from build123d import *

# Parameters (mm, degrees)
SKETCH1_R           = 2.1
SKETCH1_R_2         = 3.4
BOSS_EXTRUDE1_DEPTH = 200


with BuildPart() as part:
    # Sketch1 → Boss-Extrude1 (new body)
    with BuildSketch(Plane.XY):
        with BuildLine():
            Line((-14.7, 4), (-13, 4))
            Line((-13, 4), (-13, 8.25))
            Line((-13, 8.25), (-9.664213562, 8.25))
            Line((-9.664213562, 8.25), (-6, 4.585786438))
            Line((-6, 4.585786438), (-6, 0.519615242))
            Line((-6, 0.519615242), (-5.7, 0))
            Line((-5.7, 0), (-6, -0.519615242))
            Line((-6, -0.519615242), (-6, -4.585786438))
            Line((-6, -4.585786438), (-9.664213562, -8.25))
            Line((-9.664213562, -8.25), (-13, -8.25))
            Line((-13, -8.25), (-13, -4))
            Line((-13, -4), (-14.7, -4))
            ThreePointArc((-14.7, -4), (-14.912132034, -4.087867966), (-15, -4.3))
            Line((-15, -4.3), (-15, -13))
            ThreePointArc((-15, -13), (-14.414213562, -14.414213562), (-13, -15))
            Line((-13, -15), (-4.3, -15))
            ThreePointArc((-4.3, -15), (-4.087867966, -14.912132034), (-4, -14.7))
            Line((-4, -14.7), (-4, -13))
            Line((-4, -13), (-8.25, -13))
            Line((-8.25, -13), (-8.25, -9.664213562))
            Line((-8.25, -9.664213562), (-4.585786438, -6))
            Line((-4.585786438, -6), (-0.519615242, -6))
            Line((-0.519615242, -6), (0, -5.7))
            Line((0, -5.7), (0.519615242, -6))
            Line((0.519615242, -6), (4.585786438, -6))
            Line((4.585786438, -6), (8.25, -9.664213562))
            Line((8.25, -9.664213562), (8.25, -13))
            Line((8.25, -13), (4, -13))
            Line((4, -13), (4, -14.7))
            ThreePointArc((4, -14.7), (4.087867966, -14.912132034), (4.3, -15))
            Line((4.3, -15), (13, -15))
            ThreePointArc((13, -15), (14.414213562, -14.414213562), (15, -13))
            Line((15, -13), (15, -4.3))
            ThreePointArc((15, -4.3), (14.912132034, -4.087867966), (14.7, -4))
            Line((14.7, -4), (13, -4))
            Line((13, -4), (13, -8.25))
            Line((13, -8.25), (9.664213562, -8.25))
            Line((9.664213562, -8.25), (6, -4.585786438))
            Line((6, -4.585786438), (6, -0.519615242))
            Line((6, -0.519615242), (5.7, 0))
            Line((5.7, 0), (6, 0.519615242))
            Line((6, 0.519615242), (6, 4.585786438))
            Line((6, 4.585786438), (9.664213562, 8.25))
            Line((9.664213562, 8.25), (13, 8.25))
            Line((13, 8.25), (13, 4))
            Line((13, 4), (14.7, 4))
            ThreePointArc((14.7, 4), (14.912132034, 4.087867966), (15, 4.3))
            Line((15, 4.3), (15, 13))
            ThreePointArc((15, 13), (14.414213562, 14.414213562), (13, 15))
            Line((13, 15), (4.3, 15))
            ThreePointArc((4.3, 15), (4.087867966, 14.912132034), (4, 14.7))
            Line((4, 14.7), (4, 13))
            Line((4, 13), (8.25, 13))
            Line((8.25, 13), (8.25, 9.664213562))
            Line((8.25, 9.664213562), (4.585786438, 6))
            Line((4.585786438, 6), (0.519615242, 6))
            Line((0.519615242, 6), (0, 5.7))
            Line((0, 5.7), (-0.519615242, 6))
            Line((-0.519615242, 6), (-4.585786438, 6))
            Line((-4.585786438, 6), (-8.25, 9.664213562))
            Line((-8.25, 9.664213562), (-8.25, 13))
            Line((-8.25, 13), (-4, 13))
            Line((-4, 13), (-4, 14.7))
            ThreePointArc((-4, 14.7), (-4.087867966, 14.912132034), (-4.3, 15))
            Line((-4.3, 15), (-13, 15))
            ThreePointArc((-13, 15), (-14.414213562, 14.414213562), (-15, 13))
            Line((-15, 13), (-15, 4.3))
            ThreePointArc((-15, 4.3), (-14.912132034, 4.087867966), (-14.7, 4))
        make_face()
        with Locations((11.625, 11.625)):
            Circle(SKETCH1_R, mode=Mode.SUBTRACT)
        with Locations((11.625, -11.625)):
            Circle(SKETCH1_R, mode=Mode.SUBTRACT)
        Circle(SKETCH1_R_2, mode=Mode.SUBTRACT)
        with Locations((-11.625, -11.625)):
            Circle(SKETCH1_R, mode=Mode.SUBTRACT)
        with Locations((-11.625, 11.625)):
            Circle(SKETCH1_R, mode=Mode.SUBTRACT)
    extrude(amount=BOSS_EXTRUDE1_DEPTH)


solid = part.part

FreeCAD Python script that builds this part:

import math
import FreeCAD as App
import Part
import Sketcher
Q = App.Units.Quantity

doc = App.newDocument("Part")
body = doc.addObject("PartDesign::Body", "Body")

# Sketch on XY plane
sketch1 = doc.addObject("Sketcher::SketchObject", "Sketch")
body.addObject(sketch1)
sketch1.AttachmentSupport = (doc.XY_Plane, [""])
sketch1.MapMode = "FlatFace"
sketch1.addGeometry([
    Part.LineSegment(App.Vector(-14.7, 4, 0), App.Vector(-13, 4, 0)),  # 0
    Part.LineSegment(App.Vector(-13, 4, 0), App.Vector(-13, 8.25, 0)),  # 1
    Part.LineSegment(App.Vector(-13, 8.25, 0), App.Vector(-9.664214, 8.25, 0)),  # 2
    Part.LineSegment(App.Vector(-9.664214, 8.25, 0), App.Vector(-6, 4.585786, 0)),  # 3
    Part.LineSegment(App.Vector(-6, 4.585786, 0), App.Vector(-6, 0.519615, 0)),  # 4
    Part.LineSegment(App.Vector(-6, 0.519615, 0), App.Vector(-5.7, 0, 0)),  # 5
    Part.LineSegment(App.Vector(-5.7, 0, 0), App.Vector(-6, -0.519615, 0)),  # 6
    Part.LineSegment(App.Vector(-6, -0.519615, 0), App.Vector(-6, -4.585786, 0)),  # 7
    Part.LineSegment(App.Vector(-6, -4.585786, 0), App.Vector(-9.664214, -8.25, 0)),  # 8
    Part.LineSegment(App.Vector(-9.664214, -8.25, 0), App.Vector(-13, -8.25, 0)),  # 9
    Part.LineSegment(App.Vector(-13, -8.25, 0), App.Vector(-13, -4, 0)),  # 10
    Part.LineSegment(App.Vector(-13, -4, 0), App.Vector(-14.7, -4, 0)),  # 11
    Part.ArcOfCircle(Part.Circle(App.Vector(-14.7, -4.3, 0), App.Vector(0, 0, 1), 0.3), math.radians(90), math.radians(180)),  # 12
    Part.LineSegment(App.Vector(-15, -4.3, 0), App.Vector(-15, -13, 0)),  # 13
    Part.ArcOfCircle(Part.Circle(App.Vector(-13, -13, 0), App.Vector(0, 0, 1), 2), math.radians(-180), math.radians(-90)),  # 14
    Part.LineSegment(App.Vector(-13, -15, 0), App.Vector(-4.3, -15, 0)),  # 15
    Part.ArcOfCircle(Part.Circle(App.Vector(-4.3, -14.7, 0), App.Vector(0, 0, 1), 0.3), math.radians(-90), math.radians(0)),  # 16
    Part.LineSegment(App.Vector(-4, -14.7, 0), App.Vector(-4, -13, 0)),  # 17
    Part.LineSegment(App.Vector(-4, -13, 0), App.Vector(-8.25, -13, 0)),  # 18
    Part.LineSegment(App.Vector(-8.25, -13, 0), App.Vector(-8.25, -9.664214, 0)),  # 19
    Part.LineSegment(App.Vector(-8.25, -9.664214, 0), App.Vector(-4.585786, -6, 0)),  # 20
    Part.LineSegment(App.Vector(-4.585786, -6, 0), App.Vector(-0.519615, -6, 0)),  # 21
    Part.LineSegment(App.Vector(-0.519615, -6, 0), App.Vector(0, -5.7, 0)),  # 22
    Part.LineSegment(App.Vector(0, -5.7, 0), App.Vector(0.519615, -6, 0)),  # 23
    Part.LineSegment(App.Vector(0.519615, -6, 0), App.Vector(4.585786, -6, 0)),  # 24
    Part.LineSegment(App.Vector(4.585786, -6, 0), App.Vector(8.25, -9.664214, 0)),  # 25
    Part.LineSegment(App.Vector(8.25, -9.664214, 0), App.Vector(8.25, -13, 0)),  # 26
    Part.LineSegment(App.Vector(8.25, -13, 0), App.Vector(4, -13, 0)),  # 27
    Part.LineSegment(App.Vector(4, -13, 0), App.Vector(4, -14.7, 0)),  # 28
    Part.ArcOfCircle(Part.Circle(App.Vector(4.3, -14.7, 0), App.Vector(0, 0, 1), 0.3), math.radians(-180), math.radians(-90)),  # 29
    Part.LineSegment(App.Vector(4.3, -15, 0), App.Vector(13, -15, 0)),  # 30
    Part.ArcOfCircle(Part.Circle(App.Vector(13, -13, 0), App.Vector(0, 0, 1), 2), math.radians(-90), math.radians(0)),  # 31
    Part.LineSegment(App.Vector(15, -13, 0), App.Vector(15, -4.3, 0)),  # 32
    Part.ArcOfCircle(Part.Circle(App.Vector(14.7, -4.3, 0), App.Vector(0, 0, 1), 0.3), math.radians(0), math.radians(90)),  # 33
    Part.LineSegment(App.Vector(14.7, -4, 0), App.Vector(13, -4, 0)),  # 34
    Part.LineSegment(App.Vector(13, -4, 0), App.Vector(13, -8.25, 0)),  # 35
    Part.LineSegment(App.Vector(13, -8.25, 0), App.Vector(9.664214, -8.25, 0)),  # 36
    Part.LineSegment(App.Vector(9.664214, -8.25, 0), App.Vector(6, -4.585786, 0)),  # 37
    Part.LineSegment(App.Vector(6, -4.585786, 0), App.Vector(6, -0.519615, 0)),  # 38
    Part.LineSegment(App.Vector(6, -0.519615, 0), App.Vector(5.7, 0, 0)),  # 39
    Part.LineSegment(App.Vector(5.7, 0, 0), App.Vector(6, 0.519615, 0)),  # 40
    Part.LineSegment(App.Vector(6, 0.519615, 0), App.Vector(6, 4.585786, 0)),  # 41
    Part.LineSegment(App.Vector(6, 4.585786, 0), App.Vector(9.664214, 8.25, 0)),  # 42
    Part.LineSegment(App.Vector(9.664214, 8.25, 0), App.Vector(13, 8.25, 0)),  # 43
    Part.LineSegment(App.Vector(13, 8.25, 0), App.Vector(13, 4, 0)),  # 44
    Part.LineSegment(App.Vector(13, 4, 0), App.Vector(14.7, 4, 0)),  # 45
    Part.ArcOfCircle(Part.Circle(App.Vector(14.7, 4.3, 0), App.Vector(0, 0, 1), 0.3), math.radians(-90), math.radians(0)),  # 46
    Part.LineSegment(App.Vector(15, 4.3, 0), App.Vector(15, 13, 0)),  # 47
    Part.ArcOfCircle(Part.Circle(App.Vector(13, 13, 0), App.Vector(0, 0, 1), 2), math.radians(0), math.radians(90)),  # 48
    Part.LineSegment(App.Vector(13, 15, 0), App.Vector(4.3, 15, 0)),  # 49
    Part.ArcOfCircle(Part.Circle(App.Vector(4.3, 14.7, 0), App.Vector(0, 0, 1), 0.3), math.radians(90), math.radians(180)),  # 50
    Part.LineSegment(App.Vector(4, 14.7, 0), App.Vector(4, 13, 0)),  # 51
    Part.LineSegment(App.Vector(4, 13, 0), App.Vector(8.25, 13, 0)),  # 52
    Part.LineSegment(App.Vector(8.25, 13, 0), App.Vector(8.25, 9.664214, 0)),  # 53
    Part.LineSegment(App.Vector(8.25, 9.664214, 0), App.Vector(4.585786, 6, 0)),  # 54
    Part.LineSegment(App.Vector(4.585786, 6, 0), App.Vector(0.519615, 6, 0)),  # 55
    Part.LineSegment(App.Vector(0.519615, 6, 0), App.Vector(0, 5.7, 0)),  # 56
    Part.LineSegment(App.Vector(0, 5.7, 0), App.Vector(-0.519615, 6, 0)),  # 57
    Part.LineSegment(App.Vector(-0.519615, 6, 0), App.Vector(-4.585786, 6, 0)),  # 58
    Part.LineSegment(App.Vector(-4.585786, 6, 0), App.Vector(-8.25, 9.664214, 0)),  # 59
    Part.LineSegment(App.Vector(-8.25, 9.664214, 0), App.Vector(-8.25, 13, 0)),  # 60
    Part.LineSegment(App.Vector(-8.25, 13, 0), App.Vector(-4, 13, 0)),  # 61
    Part.LineSegment(App.Vector(-4, 13, 0), App.Vector(-4, 14.7, 0)),  # 62
    Part.ArcOfCircle(Part.Circle(App.Vector(-4.3, 14.7, 0), App.Vector(0, 0, 1), 0.3), math.radians(0), math.radians(90)),  # 63
    Part.LineSegment(App.Vector(-4.3, 15, 0), App.Vector(-13, 15, 0)),  # 64
    Part.ArcOfCircle(Part.Circle(App.Vector(-13, 13, 0), App.Vector(0, 0, 1), 2), math.radians(90), math.radians(180)),  # 65
    Part.LineSegment(App.Vector(-15, 13, 0), App.Vector(-15, 4.3, 0)),  # 66
    Part.ArcOfCircle(Part.Circle(App.Vector(-14.7, 4.3, 0), App.Vector(0, 0, 1), 0.3), math.radians(-180), math.radians(-90)),  # 67
    Part.Circle(App.Vector(-11.625, -11.625, 0), App.Vector(0, 0, 1), 2.1),  # 68
    Part.Circle(App.Vector(11.625, -11.625, 0), App.Vector(0, 0, 1), 2.1),  # 69
    Part.Circle(App.Vector(-11.625, 11.625, 0), App.Vector(0, 0, 1), 2.1),  # 70
    Part.Circle(App.Vector(0, 0, 0), App.Vector(0, 0, 1), 3.4),  # 71
    Part.Circle(App.Vector(11.625, 11.625, 0), App.Vector(0, 0, 1), 2.1),  # 72
], False)
sketch1.addConstraint([
    Sketcher.Constraint("Coincident", 0, 2, 1, 1),
    Sketcher.Constraint("Coincident", 1, 2, 2, 1),
    Sketcher.Constraint("Coincident", 2, 2, 3, 1),
    Sketcher.Constraint("Coincident", 3, 2, 4, 1),
    Sketcher.Constraint("Coincident", 4, 2, 5, 1),
    Sketcher.Constraint("Coincident", 5, 2, 6, 1),
    Sketcher.Constraint("Coincident", 6, 2, 7, 1),
    Sketcher.Constraint("Coincident", 7, 2, 8, 1),
    Sketcher.Constraint("Coincident", 8, 2, 9, 1),
    Sketcher.Constraint("Coincident", 9, 2, 10, 1),
    Sketcher.Constraint("Coincident", 10, 2, 11, 1),
    Sketcher.Constraint("Tangent", 11, 2, 12, 1),
    Sketcher.Constraint("Tangent", 12, 2, 13, 1),
    Sketcher.Constraint("Tangent", 13, 2, 14, 1),
    Sketcher.Constraint("Tangent", 14, 2, 15, 1),
    Sketcher.Constraint("Tangent", 15, 2, 16, 1),
    Sketcher.Constraint("Tangent", 16, 2, 17, 1),
    Sketcher.Constraint("Coincident", 17, 2, 18, 1),
    Sketcher.Constraint("Coincident", 18, 2, 19, 1),
    Sketcher.Constraint("Coincident", 19, 2, 20, 1),
    Sketcher.Constraint("Coincident", 20, 2, 21, 1),
    Sketcher.Constraint("Coincident", 21, 2, 22, 1),
    Sketcher.Constraint("Coincident", 22, 2, 23, 1),
    Sketcher.Constraint("Coincident", 23, 2, 24, 1),
    Sketcher.Constraint("Coincident", 24, 2, 25, 1),
    Sketcher.Constraint("Coincident", 25, 2, 26, 1),
    Sketcher.Constraint("Coincident", 26, 2, 27, 1),
    Sketcher.Constraint("Coincident", 27, 2, 28, 1),
    Sketcher.Constraint("Tangent", 28, 2, 29, 1),
    Sketcher.Constraint("Tangent", 29, 2, 30, 1),
    Sketcher.Constraint("Tangent", 30, 2, 31, 1),
    Sketcher.Constraint("Tangent", 31, 2, 32, 1),
    Sketcher.Constraint("Tangent", 32, 2, 33, 1),
    Sketcher.Constraint("Tangent", 33, 2, 34, 1),
    Sketcher.Constraint("Coincident", 34, 2, 35, 1),
    Sketcher.Constraint("Coincident", 35, 2, 36, 1),
    Sketcher.Constraint("Coincident", 36, 2, 37, 1),
    Sketcher.Constraint("Coincident", 37, 2, 38, 1),
    Sketcher.Constraint("Coincident", 38, 2, 39, 1),
    Sketcher.Constraint("Coincident", 39, 2, 40, 1),
    Sketcher.Constraint("Coincident", 40, 2, 41, 1),
    Sketcher.Constraint("Coincident", 41, 2, 42, 1),
    Sketcher.Constraint("Coincident", 42, 2, 43, 1),
    Sketcher.Constraint("Coincident", 43, 2, 44, 1),
    Sketcher.Constraint("Coincident", 44, 2, 45, 1),
    Sketcher.Constraint("Tangent", 45, 2, 46, 1),
    Sketcher.Constraint("Tangent", 46, 2, 47, 1),
    Sketcher.Constraint("Tangent", 47, 2, 48, 1),
    Sketcher.Constraint("Tangent", 48, 2, 49, 1),
    Sketcher.Constraint("Tangent", 49, 2, 50, 1),
    Sketcher.Constraint("Tangent", 50, 2, 51, 1),
    Sketcher.Constraint("Coincident", 51, 2, 52, 1),
    Sketcher.Constraint("Coincident", 52, 2, 53, 1),
    Sketcher.Constraint("Coincident", 53, 2, 54, 1),
    Sketcher.Constraint("Coincident", 54, 2, 55, 1),
    Sketcher.Constraint("Coincident", 55, 2, 56, 1),
    Sketcher.Constraint("Coincident", 56, 2, 57, 1),
    Sketcher.Constraint("Coincident", 57, 2, 58, 1),
    Sketcher.Constraint("Coincident", 58, 2, 59, 1),
    Sketcher.Constraint("Coincident", 59, 2, 60, 1),
    Sketcher.Constraint("Coincident", 60, 2, 61, 1),
    Sketcher.Constraint("Coincident", 61, 2, 62, 1),
    Sketcher.Constraint("Tangent", 62, 2, 63, 1),
    Sketcher.Constraint("Tangent", 63, 2, 64, 1),
    Sketcher.Constraint("Tangent", 64, 2, 65, 1),
    Sketcher.Constraint("Tangent", 65, 2, 66, 1),
    Sketcher.Constraint("Tangent", 66, 2, 67, 1),
    Sketcher.Constraint("Tangent", 67, 2, 0, 1),
    Sketcher.Constraint("Horizontal", 0),
    Sketcher.Constraint("Vertical", 1),
    Sketcher.Constraint("Horizontal", 2),
    Sketcher.Constraint("Vertical", 4),
    Sketcher.Constraint("Vertical", 7),
    Sketcher.Constraint("Horizontal", 9),
    Sketcher.Constraint("Vertical", 10),
    Sketcher.Constraint("Horizontal", 11),
    Sketcher.Constraint("Vertical", 13),
    Sketcher.Constraint("Horizontal", 15),
    Sketcher.Constraint("Vertical", 17),
    Sketcher.Constraint("Horizontal", 18),
    Sketcher.Constraint("Vertical", 19),
    Sketcher.Constraint("Horizontal", 21),
    Sketcher.Constraint("Horizontal", 24),
    Sketcher.Constraint("Vertical", 26),
    Sketcher.Constraint("Horizontal", 27),
    Sketcher.Constraint("Vertical", 28),
    Sketcher.Constraint("Horizontal", 30),
    Sketcher.Constraint("Vertical", 32),
    Sketcher.Constraint("Horizontal", 34),
    Sketcher.Constraint("Vertical", 35),
    Sketcher.Constraint("Horizontal", 36),
    Sketcher.Constraint("Vertical", 38),
    Sketcher.Constraint("Vertical", 41),
    Sketcher.Constraint("Horizontal", 43),
    Sketcher.Constraint("Vertical", 44),
    Sketcher.Constraint("Horizontal", 45),
    Sketcher.Constraint("Vertical", 47),
    Sketcher.Constraint("Horizontal", 49),
    Sketcher.Constraint("Vertical", 51),
    Sketcher.Constraint("Horizontal", 52),
    Sketcher.Constraint("Vertical", 53),
    Sketcher.Constraint("Horizontal", 55),
    Sketcher.Constraint("Horizontal", 58),
    Sketcher.Constraint("Vertical", 60),
    Sketcher.Constraint("Horizontal", 61),
    Sketcher.Constraint("Vertical", 62),
    Sketcher.Constraint("Horizontal", 64),
    Sketcher.Constraint("Vertical", 66),
    Sketcher.Constraint("Coincident", 71, 3, -1, 1),
    Sketcher.Constraint("Equal", 12, 16),
    Sketcher.Constraint("Equal", 16, 29),
    Sketcher.Constraint("Equal", 14, 31),
    Sketcher.Constraint("Equal", 29, 33),
    Sketcher.Constraint("Equal", 33, 46),
    Sketcher.Constraint("Equal", 31, 48),
    Sketcher.Constraint("Equal", 46, 50),
    Sketcher.Constraint("Equal", 50, 63),
    Sketcher.Constraint("Equal", 48, 65),
    Sketcher.Constraint("Equal", 63, 67),
    Sketcher.Constraint("Equal", 68, 69),
    Sketcher.Constraint("Equal", 69, 70),
    Sketcher.Constraint("Equal", 70, 72),
    Sketcher.Constraint("Symmetric", 12, 3, 46, 3, -1, 1),
    Sketcher.Constraint("Symmetric", 16, 3, 50, 3, -1, 1),
    Sketcher.Constraint("Symmetric", 29, 3, 63, 3, -1, 1),
    Sketcher.Constraint("Symmetric", 33, 3, 67, 3, -1, 1),
    Sketcher.Constraint("Symmetric", 69, 3, 70, 3, -1, 1),
    Sketcher.Constraint("Symmetric", 68, 3, 72, 3, -1, 1),
    Sketcher.Constraint("Symmetric", 1, 2, 35, 2, -1, 1),
    Sketcher.Constraint("Symmetric", 3, 2, 37, 2, -1, 1),
    Sketcher.Constraint("Symmetric", 5, 2, 39, 2, -1, 1),
    Sketcher.Constraint("Symmetric", 6, 2, 40, 2, -1, 1),
    Sketcher.Constraint("Symmetric", 8, 2, 42, 2, -1, 1),
    Sketcher.Constraint("Symmetric", 18, 2, 52, 2, -1, 1),
    Sketcher.Constraint("Symmetric", 20, 2, 54, 2, -1, 1),
    Sketcher.Constraint("Symmetric", 22, 2, 56, 2, -1, 1),
    Sketcher.Constraint("Symmetric", 23, 2, 57, 2, -1, 1),
    Sketcher.Constraint("Symmetric", 25, 2, 59, 2, -1, 1),
    Sketcher.Constraint("Symmetric", 16, 3, 29, 3, -2),
    Sketcher.Constraint("Symmetric", 12, 3, 33, 3, -2),
    Sketcher.Constraint("Symmetric", 68, 3, 69, 3, -2),
    Sketcher.Constraint("Symmetric", 21, 2, 23, 2, -2),
    Sketcher.Constraint("Symmetric", 19, 2, 25, 2, -2),
    Sketcher.Constraint("Symmetric", 9, 2, 35, 2, -2),
    Sketcher.Constraint("Symmetric", 7, 2, 37, 2, -2),
    Sketcher.Constraint("PointOnObject", 5, 2, -1),
    Sketcher.Constraint("PointOnObject", 22, 2, -2),
    Sketcher.Constraint("Perpendicular", 3, 8),
    Sketcher.Constraint("Parallel", 8, 20),
    Sketcher.Constraint("Perpendicular", 5, 22),
    Sketcher.Constraint("Perpendicular", 6, 23),
    Sketcher.Constraint("Perpendicular", 20, 25),
    Sketcher.Constraint("Parallel", 25, 37),
    Sketcher.Constraint("Perpendicular", 22, 39),
    Sketcher.Constraint("Perpendicular", 37, 42),
    Sketcher.Constraint("Parallel", 42, 54),
    Sketcher.Constraint("Perpendicular", 39, 56),
    Sketcher.Constraint("Perpendicular", 54, 59),
    Sketcher.Constraint("Horizontal", 13, 2, 17, 2),
    Sketcher.Constraint("Horizontal", 18, 2, 26, 2),
    Sketcher.Constraint("Horizontal", 52, 2, 60, 2),
    Sketcher.Constraint("Vertical", 65, 3, 0, 2),
    Sketcher.Constraint("Vertical", 2, 2, 8, 2),
    Sketcher.Constraint("Vertical", 35, 2, 43, 2),
    Sketcher.Constraint("Equal", 61, 1),
    Sketcher.Constraint("Equal", 58, 4),
    Sketcher.Constraint("Equal", 64, 13),
    Sketcher.Constraint("Equal", 43, 19),
    Sketcher.Constraint("Equal", 8, 20),
    Sketcher.Constraint("Equal", 6, 22),
    Sketcher.Constraint("Radius", 14, Q("2 mm")),
    Sketcher.Constraint("Diameter", 68, Q("4.2 mm")),
    Sketcher.Constraint("Diameter", 71, Q("6.8 mm")),
    Sketcher.Constraint("Radius", 12, Q("0.3 mm")),
    Sketcher.Constraint("Angle", 5, Q("-60 deg")),
    Sketcher.Constraint("DistanceX", 15, 1, 15, 2, Q("8.7 mm")),
    Sketcher.Constraint("DistanceX", 14, 3, -1, 1, Q("13 mm")),
    Sketcher.Constraint("DistanceX", 3, 2, -1, 1, Q("6 mm")),
    Sketcher.Constraint("Distance", 5, Q("0.6 mm")),
    Sketcher.Constraint("DistanceX", 18, 2, 18, 1, Q("4.25 mm")),
    Sketcher.Constraint("DistanceX", 68, 3, -1, 1, Q("11.625 mm")),
    Sketcher.Constraint("DistanceY", 68, 3, -1, 1, Q("11.625 mm")),
    Sketcher.Constraint("DistanceX", 21, 1, 21, 2, Q("4.066171 mm")),
])
pad1 = doc.addObject("PartDesign::Pad", "Pad")
body.addObject(pad1)
pad1.Profile = sketch1
pad1.Length = 200

doc.recompute()
